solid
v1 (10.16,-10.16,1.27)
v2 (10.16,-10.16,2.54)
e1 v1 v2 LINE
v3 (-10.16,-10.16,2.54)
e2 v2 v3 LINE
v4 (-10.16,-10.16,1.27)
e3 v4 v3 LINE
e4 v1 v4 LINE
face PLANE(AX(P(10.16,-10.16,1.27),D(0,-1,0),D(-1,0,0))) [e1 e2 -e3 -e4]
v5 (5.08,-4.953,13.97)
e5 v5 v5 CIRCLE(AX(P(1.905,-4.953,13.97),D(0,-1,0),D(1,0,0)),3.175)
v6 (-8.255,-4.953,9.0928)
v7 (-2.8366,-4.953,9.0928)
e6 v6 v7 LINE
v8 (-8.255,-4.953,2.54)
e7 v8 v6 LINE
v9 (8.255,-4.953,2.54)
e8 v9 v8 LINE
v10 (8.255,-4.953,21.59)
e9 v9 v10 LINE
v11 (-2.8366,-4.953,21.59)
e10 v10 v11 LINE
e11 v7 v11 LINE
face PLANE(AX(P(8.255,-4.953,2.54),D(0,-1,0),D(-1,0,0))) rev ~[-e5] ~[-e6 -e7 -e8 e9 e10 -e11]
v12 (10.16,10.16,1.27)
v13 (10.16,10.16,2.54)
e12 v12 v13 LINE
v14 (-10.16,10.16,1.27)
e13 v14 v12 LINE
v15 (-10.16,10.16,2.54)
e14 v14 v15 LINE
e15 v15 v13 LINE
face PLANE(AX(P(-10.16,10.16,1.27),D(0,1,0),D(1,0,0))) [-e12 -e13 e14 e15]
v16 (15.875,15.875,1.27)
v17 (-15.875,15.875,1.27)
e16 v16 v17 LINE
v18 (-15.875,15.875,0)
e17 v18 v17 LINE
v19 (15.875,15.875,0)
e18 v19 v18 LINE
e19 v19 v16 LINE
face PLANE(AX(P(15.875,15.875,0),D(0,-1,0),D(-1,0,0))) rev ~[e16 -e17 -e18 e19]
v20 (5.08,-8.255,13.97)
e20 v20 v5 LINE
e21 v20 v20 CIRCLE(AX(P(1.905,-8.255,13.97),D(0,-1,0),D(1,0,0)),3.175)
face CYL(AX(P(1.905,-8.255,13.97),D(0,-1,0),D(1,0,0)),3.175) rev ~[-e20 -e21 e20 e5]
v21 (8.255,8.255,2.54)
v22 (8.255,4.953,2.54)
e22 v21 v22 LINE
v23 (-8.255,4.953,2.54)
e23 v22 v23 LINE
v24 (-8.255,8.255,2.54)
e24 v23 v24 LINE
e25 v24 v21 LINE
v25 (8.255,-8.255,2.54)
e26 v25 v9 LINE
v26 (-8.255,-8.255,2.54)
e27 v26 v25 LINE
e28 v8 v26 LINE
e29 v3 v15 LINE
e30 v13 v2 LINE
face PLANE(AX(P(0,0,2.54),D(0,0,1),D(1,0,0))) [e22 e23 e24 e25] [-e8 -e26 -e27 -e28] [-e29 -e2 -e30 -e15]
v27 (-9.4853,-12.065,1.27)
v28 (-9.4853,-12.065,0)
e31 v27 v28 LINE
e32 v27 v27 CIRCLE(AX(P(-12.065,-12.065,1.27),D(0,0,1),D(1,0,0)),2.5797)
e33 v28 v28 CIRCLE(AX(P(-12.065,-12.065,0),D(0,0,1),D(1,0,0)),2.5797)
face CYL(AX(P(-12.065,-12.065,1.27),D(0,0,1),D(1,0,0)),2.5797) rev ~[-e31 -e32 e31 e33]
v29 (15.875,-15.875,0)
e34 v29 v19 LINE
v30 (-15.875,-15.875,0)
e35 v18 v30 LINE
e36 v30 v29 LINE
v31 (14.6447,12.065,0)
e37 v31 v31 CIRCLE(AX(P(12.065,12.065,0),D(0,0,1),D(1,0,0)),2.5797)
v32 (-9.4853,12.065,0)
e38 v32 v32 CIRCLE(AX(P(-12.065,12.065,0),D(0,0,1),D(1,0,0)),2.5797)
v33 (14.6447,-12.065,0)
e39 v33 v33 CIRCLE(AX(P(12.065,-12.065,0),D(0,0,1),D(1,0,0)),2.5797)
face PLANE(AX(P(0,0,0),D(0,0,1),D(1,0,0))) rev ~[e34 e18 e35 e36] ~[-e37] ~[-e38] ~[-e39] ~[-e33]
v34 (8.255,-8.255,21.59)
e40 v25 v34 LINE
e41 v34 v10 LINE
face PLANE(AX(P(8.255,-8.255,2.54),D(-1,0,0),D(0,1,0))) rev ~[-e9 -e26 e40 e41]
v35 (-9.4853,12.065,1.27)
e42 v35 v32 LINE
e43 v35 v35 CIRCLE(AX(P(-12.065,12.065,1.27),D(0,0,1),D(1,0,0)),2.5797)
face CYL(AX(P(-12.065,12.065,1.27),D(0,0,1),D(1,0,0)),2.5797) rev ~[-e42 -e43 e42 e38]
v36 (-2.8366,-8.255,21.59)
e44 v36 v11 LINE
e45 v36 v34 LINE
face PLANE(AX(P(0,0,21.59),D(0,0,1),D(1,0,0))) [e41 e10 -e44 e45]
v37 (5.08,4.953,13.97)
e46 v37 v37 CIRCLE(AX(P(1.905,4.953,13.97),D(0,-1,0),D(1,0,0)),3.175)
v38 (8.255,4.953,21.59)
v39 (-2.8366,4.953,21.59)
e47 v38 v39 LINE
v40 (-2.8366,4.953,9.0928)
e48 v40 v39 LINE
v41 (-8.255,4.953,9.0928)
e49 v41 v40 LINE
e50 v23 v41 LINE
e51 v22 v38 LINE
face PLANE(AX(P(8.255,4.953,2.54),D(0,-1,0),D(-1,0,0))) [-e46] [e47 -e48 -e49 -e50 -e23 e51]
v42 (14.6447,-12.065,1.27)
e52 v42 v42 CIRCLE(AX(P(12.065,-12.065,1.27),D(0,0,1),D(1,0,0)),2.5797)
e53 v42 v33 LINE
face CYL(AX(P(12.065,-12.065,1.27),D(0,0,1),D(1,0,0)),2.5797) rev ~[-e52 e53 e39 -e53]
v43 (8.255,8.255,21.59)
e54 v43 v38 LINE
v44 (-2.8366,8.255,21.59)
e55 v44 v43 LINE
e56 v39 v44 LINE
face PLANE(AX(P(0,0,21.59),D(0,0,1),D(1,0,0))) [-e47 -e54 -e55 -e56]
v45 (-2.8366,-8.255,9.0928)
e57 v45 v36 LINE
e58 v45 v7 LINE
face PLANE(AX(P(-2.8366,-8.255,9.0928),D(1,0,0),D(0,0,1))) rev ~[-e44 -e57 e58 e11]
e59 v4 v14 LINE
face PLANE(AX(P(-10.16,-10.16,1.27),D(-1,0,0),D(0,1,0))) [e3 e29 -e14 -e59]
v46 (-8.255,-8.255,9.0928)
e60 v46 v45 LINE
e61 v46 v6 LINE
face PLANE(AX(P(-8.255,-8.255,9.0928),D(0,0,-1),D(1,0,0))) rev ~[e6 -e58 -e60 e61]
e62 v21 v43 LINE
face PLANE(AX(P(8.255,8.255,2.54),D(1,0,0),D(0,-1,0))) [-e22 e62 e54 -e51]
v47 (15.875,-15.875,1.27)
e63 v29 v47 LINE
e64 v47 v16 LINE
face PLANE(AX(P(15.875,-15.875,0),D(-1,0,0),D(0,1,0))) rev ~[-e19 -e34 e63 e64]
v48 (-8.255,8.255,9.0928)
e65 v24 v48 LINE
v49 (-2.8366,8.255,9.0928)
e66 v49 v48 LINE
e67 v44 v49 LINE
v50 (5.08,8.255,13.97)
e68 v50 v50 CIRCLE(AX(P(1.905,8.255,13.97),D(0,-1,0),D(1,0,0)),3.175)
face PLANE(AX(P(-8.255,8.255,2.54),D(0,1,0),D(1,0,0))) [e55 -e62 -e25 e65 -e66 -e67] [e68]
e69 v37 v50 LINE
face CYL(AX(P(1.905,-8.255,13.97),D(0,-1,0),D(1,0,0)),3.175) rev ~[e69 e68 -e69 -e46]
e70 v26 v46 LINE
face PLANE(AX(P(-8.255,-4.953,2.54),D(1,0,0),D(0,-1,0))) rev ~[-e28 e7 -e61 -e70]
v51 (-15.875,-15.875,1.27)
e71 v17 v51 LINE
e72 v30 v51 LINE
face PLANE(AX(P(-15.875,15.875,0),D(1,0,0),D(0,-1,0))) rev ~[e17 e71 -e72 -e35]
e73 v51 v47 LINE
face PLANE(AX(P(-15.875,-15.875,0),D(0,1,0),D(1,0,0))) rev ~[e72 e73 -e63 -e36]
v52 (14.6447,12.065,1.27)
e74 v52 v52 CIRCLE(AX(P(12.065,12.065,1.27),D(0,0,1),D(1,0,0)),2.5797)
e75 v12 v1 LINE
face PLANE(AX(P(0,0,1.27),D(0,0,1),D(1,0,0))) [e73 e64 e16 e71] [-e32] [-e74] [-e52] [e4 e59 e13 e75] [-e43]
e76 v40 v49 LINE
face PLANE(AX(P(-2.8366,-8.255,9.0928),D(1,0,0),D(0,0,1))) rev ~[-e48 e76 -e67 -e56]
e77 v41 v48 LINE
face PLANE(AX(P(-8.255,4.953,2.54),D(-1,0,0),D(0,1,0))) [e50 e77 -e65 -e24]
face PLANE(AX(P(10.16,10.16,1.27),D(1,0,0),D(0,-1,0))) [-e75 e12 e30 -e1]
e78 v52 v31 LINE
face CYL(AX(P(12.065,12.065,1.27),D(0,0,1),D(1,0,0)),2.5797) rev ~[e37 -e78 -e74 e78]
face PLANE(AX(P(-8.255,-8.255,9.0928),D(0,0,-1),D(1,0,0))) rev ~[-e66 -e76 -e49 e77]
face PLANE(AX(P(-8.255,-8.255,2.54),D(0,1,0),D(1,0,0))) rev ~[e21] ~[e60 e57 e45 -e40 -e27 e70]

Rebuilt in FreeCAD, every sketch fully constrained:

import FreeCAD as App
import Part
import Sketcher
from FreeCAD import Vector
Q = App.Units.Quantity


def add_polygon(sketch, points):
    """Adds a closed chain of lines whose ends are joined by coincident constraints."""
    first, n = sketch.GeometryCount, len(points)
    for a, b in zip(points, points[1:] + points[:1]):
        sketch.addGeometry(Part.LineSegment(App.Vector(*a, 0), App.Vector(*b, 0)), False)
    for i in range(n):
        sketch.addConstraint(Sketcher.Constraint("Coincident", first + i, 2, first + (i + 1) % n, 1))

doc = App.newDocument("Part")
body = doc.addObject("PartDesign::Body", "Body")

sketch1 = body.newObject("Sketcher::SketchObject", "Sketch")
sketch1.AttachmentSupport = (doc.getObject("XY_Plane"), [""])
sketch1.MapMode = "FlatFace"
add_polygon(sketch1, [(16, -16), (16, 16), (-16, 16), (-16, -16)])
sketch1.addConstraint([
    Sketcher.Constraint("Vertical", 0),
    Sketcher.Constraint("Horizontal", 1),
    Sketcher.Constraint("Vertical", 2),
    Sketcher.Constraint("Horizontal", 3),
    Sketcher.Constraint("Symmetric", 0, 2, 2, 2, -1, 1),
    Sketcher.Constraint("Equal", 3, 0),
    Sketcher.Constraint("DistanceX", 1, 2, 1, 1, Q("1.25 in")),
])
pad1 = body.newObject("PartDesign::Pad", "Pad")
pad1.Profile = sketch1
pad1.Length = Q("0.05 in")

sketch2 = body.newObject("Sketcher::SketchObject", "Sketch001")
sketch2.AttachmentSupport = (doc.getObject("XY_Plane"), [""])
sketch2.MapMode = "FlatFace"
sketch2.AttachmentOffset = App.Placement(Vector(0, 0, 0.05 * 25.4), App.Rotation())
add_polygon(sketch2, [(10, 10), (-10, 10), (-10, -10), (10, -10)])
sketch2.addConstraint([
    Sketcher.Constraint("Horizontal", 0),
    Sketcher.Constraint("Vertical", 1),
    Sketcher.Constraint("Horizontal", 2),
    Sketcher.Constraint("Vertical", 3),
    Sketcher.Constraint("Symmetric", 0, 2, 2, 2, -1, 1),
    Sketcher.Constraint("Equal", 2, 1),
    Sketcher.Constraint("DistanceX", 0, 2, 0, 1, Q("0.8 in")),
])
pad2 = body.newObject("PartDesign::Pad", "Pad001")
pad2.Profile = sketch2
pad2.Length = Q("0.05 in")

sketch3 = body.newObject("Sketcher::SketchObject", "Sketch002")
sketch3.AttachmentSupport = (doc.getObject("XY_Plane"), [""])
sketch3.MapMode = "FlatFace"
sketch3.AttachmentOffset = App.Placement(Vector(0, 0, 0.1 * 25.4), App.Rotation())
add_polygon(sketch3, [(8.3, 8.3), (-8.3, 8.3), (-8.3, 5), (8.3, 5)])
add_polygon(sketch3, [(-8.3, -5), (-8.3, -8.3), (8.3, -8.3), (8.3, -5)])
sketch3.addConstraint([
    Sketcher.Constraint("Horizontal", 0),
    Sketcher.Constraint("Vertical", 1),
    Sketcher.Constraint("Horizontal", 2),
    Sketcher.Constraint("Vertical", 3),
    Sketcher.Constraint("Vertical", 4),
    Sketcher.Constraint("Horizontal", 5),
    Sketcher.Constraint("Vertical", 6),
    Sketcher.Constraint("Horizontal", 7),
    Sketcher.Constraint("Symmetric", 3, 2, 4, 2, -1, 1),
    Sketcher.Constraint("Symmetric", 1, 2, 6, 2, -1, 1),
    Sketcher.Constraint("Vertical", 1, 2, 4, 2),
    Sketcher.Constraint("DistanceY", 1, 2, 1, 1, Q("0.13 in")),
    Sketcher.Constraint("DistanceY", 6, 2, 2, 2, Q("0.39 in")),
    Sketcher.Constraint("DistanceX", 0, 2, 0, 1, Q("0.65 in")),
])
pad3 = body.newObject("PartDesign::Pad", "Pad002")
pad3.Profile = sketch3
pad3.Length = Q("0.75 in")

sketch4 = body.newObject("Sketcher::SketchObject", "Sketch003")
sketch4.AttachmentSupport = (doc.getObject("XZ_Plane"), [""])
sketch4.MapMode = "FlatFace"
sketch4.AttachmentOffset = App.Placement(Vector(0, 0, 0.325 * 25.4), App.Rotation())
sketch4.addGeometry(Part.Circle(Vector(1.9, 14, 0), Vector(0, 0, 1), 3.2), False)
sketch4.addConstraint([
    Sketcher.Constraint("Diameter", 0, Q("0.25 in")),
    Sketcher.Constraint("DistanceY", -1, 1, 0, 3, Q("0.55 in")),
    Sketcher.Constraint("DistanceX", -1, 1, 0, 3, Q("0.075 in")),
])
pocket1 = body.newObject("PartDesign::Pocket", "Pocket")
pocket1.Profile = sketch4
pocket1.Length = Q("5 in")

sketch5 = body.newObject("Sketcher::SketchObject", "Sketch004")
sketch5.AttachmentSupport = (doc.getObject("XY_Plane"), [""])
sketch5.MapMode = "FlatFace"
sketch5.AttachmentOffset = App.Placement(Vector(0, 0, 0.05 * 25.4), App.Rotation())
sketch5.addGeometry([
    Part.Circle(Vector(-12.1, 12.1, 0), Vector(0, 0, 1), 2.6),
    Part.Circle(Vector(12.1, 12.1, 0), Vector(0, 0, 1), 2.6),
    Part.Circle(Vector(-12.1, -12.1, 0), Vector(0, 0, 1), 2.6),
    Part.Circle(Vector(12.1, -12.1, 0), Vector(0, 0, 1), 2.6),
], False)
sketch5.addConstraint([
    Sketcher.Constraint("Equal", 0, 1),
    Sketcher.Constraint("Equal", 1, 2),
    Sketcher.Constraint("Equal", 2, 3),
    Sketcher.Constraint("Symmetric", 1, 3, 2, 3, -1, 1),
    Sketcher.Constraint("Symmetric", 0, 3, 3, 3, -1, 1),
    Sketcher.Constraint("Symmetric", 0, 3, 1, 3, -2),
    Sketcher.Constraint("Diameter", 0, Q("0.203126 in")),
    Sketcher.Constraint("DistanceX", 0, 3, 1, 3, Q("0.95 in")),
    Sketcher.Constraint("DistanceY", 2, 3, 0, 3, Q("0.95 in")),
])
pocket2 = body.newObject("PartDesign::Pocket", "Pocket001")
pocket2.Profile = sketch5
pocket2.Length = Q("0.5 in")

sketch6 = body.newObject("Sketcher::SketchObject", "Sketch005")
sketch6.AttachmentSupport = (doc.getObject("XZ_Plane"), [""])
sketch6.MapMode = "FlatFace"
sketch6.AttachmentOffset = App.Placement(Vector(0, 0, 0.325 * 25.4), App.Rotation())
add_polygon(sketch6, [(-8, 22), (-8, 9), (-3, 9), (-3, 22)])
sketch6.addConstraint([
    Sketcher.Constraint("Vertical", 0),
    Sketcher.Constraint("Horizontal", 1),
    Sketcher.Constraint("Vertical", 2),
    Sketcher.Constraint("Horizontal", 3),
    Sketcher.Constraint("DistanceY", -1, 1, 2, 2, Q("0.85 in")),
    Sketcher.Constraint("DistanceX", 0, 2, -1, 1, Q("0.325 in")),
    Sketcher.Constraint("DistanceX", 1, 1, 1, 2, Q("5.4184 mm")),
    Sketcher.Constraint("DistanceY", 0, 2, 0, 1, Q("12.4972 mm")),
])
pocket3 = body.newObject("PartDesign::Pocket", "Pocket002")
pocket3.Profile = sketch6
pocket3.Length = Q("4 in")

doc.recompute()
